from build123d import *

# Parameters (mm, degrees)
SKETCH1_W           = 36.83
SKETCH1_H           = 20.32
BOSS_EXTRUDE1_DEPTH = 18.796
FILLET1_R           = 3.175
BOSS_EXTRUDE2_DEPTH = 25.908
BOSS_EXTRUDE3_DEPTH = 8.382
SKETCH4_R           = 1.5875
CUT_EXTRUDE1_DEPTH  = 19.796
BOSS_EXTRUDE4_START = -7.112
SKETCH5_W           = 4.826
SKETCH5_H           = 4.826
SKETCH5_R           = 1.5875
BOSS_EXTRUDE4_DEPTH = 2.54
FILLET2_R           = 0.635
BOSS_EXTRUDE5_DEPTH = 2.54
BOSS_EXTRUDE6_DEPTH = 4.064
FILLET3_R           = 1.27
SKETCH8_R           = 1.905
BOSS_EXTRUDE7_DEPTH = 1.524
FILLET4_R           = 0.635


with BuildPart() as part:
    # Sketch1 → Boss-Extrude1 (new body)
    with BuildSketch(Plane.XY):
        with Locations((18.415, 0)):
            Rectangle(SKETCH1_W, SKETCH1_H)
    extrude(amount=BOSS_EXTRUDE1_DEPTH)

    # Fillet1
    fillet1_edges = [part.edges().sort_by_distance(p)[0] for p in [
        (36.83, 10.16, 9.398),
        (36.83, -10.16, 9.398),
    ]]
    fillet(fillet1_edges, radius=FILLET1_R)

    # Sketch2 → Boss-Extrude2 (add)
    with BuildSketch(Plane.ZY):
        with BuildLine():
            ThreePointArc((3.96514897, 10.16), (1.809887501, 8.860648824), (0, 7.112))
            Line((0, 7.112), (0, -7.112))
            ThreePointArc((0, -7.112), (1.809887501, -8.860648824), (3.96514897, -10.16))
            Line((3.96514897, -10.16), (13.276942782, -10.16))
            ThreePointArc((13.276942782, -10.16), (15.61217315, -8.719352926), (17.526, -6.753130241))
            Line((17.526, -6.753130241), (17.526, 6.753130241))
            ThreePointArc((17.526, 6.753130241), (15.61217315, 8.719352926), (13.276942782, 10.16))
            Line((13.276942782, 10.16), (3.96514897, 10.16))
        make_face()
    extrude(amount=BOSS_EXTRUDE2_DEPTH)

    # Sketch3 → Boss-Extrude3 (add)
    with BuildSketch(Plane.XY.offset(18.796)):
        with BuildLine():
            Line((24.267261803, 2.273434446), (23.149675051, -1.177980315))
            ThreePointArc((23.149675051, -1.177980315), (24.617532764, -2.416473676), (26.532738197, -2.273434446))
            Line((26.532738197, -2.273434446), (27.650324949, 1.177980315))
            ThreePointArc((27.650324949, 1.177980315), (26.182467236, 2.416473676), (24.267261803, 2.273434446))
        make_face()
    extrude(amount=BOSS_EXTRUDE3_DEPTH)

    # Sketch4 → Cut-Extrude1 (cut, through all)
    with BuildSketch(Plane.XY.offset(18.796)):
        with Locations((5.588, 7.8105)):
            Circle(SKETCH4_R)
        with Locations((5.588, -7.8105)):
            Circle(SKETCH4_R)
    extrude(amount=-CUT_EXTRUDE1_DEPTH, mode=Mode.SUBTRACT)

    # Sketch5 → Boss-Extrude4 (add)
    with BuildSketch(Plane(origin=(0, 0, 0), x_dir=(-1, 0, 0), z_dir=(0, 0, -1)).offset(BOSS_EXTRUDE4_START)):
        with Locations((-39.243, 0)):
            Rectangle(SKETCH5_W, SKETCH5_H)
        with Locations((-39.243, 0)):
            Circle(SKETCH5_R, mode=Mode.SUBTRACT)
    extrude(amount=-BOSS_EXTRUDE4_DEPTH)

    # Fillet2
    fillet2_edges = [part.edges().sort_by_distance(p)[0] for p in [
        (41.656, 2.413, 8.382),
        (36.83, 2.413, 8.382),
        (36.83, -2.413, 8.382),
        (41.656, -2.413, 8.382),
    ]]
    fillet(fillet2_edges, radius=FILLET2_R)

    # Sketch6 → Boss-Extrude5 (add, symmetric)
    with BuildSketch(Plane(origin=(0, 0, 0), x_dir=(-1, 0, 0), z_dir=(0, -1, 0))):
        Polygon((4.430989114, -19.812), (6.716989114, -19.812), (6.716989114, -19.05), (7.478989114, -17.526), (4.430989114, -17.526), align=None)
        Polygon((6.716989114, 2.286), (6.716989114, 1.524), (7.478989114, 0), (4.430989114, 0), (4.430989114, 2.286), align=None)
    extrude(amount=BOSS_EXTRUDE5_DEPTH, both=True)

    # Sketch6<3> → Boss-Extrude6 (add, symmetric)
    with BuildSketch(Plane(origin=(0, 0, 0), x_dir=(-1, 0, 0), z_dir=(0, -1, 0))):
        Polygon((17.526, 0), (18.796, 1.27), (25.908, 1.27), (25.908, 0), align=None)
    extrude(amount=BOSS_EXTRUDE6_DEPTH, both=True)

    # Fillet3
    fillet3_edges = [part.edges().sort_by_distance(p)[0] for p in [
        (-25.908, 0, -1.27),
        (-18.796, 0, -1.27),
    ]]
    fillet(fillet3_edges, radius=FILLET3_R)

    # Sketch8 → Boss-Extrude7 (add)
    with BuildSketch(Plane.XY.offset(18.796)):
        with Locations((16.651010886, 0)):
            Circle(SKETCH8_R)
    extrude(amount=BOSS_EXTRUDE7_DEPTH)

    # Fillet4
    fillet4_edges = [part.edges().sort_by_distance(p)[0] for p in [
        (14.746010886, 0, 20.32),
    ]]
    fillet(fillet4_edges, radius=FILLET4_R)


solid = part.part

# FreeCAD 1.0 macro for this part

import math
import FreeCAD as App
import Part
import Sketcher

V = App.Vector
Q = App.Units.Quantity


def edges_at(feature, points):
    """Names of the edges that pass closest to the given points."""
    edges = feature.Shape.Edges
    near = lambda p: min(range(len(edges)), key=lambda i: edges[i].distToShape(Part.Vertex(*p))[0])
    return sorted({f"Edge{near(p) + 1}" for p in points})


def add_polygon(sketch, points):
    """Adds a closed chain of lines whose ends are joined by coincident constraints."""
    first, n = sketch.GeometryCount, len(points)
    for a, b in zip(points, points[1:] + points[:1]):
        sketch.addGeometry(Part.LineSegment(App.Vector(*a, 0), App.Vector(*b, 0)), False)
    for i in range(n):
        sketch.addConstraint(Sketcher.Constraint("Coincident", first + i, 2, first + (i + 1) % n, 1))

doc = App.newDocument("Part")
body = doc.addObject("PartDesign::Body", "Body")

# Sketch on XY plane
sketch1 = body.newObject("Sketcher::SketchObject", "Sketch")
sketch1.AttachmentSupport = (doc.getObject("XY_Plane"), [""])
sketch1.MapMode = "FlatFace"
add_polygon(sketch1, [(0, 10.16), (0, -10.16), (36.83, -10.16), (36.83, 10.16)])  # lines 0-3
sketch1.addConstraint(Sketcher.Constraint("Vertical", 0))
sketch1.addConstraint(Sketcher.Constraint("Horizontal", 1))
sketch1.addConstraint(Sketcher.Constraint("Vertical", 2))
sketch1.addConstraint(Sketcher.Constraint("Horizontal", 3))
sketch1.addConstraint(Sketcher.Constraint("Symmetric", 0, 2, 3, 2, -1, 1))
sketch1.addConstraint(Sketcher.Constraint("DistanceY", 0, 2, 0, 1, Q("0.8 in")))
sketch1.addConstraint(Sketcher.Constraint("DistanceX", 1, 1, 1, 2, Q("1.45 in")))
pad1 = body.newObject("PartDesign::Pad", "Pad")
pad1.Profile = sketch1
pad1.Length = Q("0.74 in")
doc.recompute()

fillet = body.newObject("PartDesign::Fillet", "Fillet")
fillet.Base = (pad1, edges_at(pad1, [(36.83, 10.16, 9.398), (36.83, -10.16, 9.398)]))
fillet.Radius = Q("0.125 in")

# Sketch on YZ plane
sketch2 = body.newObject("Sketcher::SketchObject", "Sketch001")
sketch2.AttachmentSupport = (doc.getObject("YZ_Plane"), [""])
sketch2.MapMode = "FlatFace"
sketch2.addGeometry(Part.ArcOfCircle(Part.Circle(V(0, 8.621046, 0), V(0, 0, 1), 11.176), math.radians(-50.478804), math.radians(-24.619977)), False)
sketch2.addGeometry(Part.LineSegment(V(7.112, 0, 0), V(-7.112, 0, 0)), False)
sketch2.addGeometry(Part.ArcOfCircle(Part.Circle(V(0, 8.621046, 0), V(0, 0, 1), 11.176), math.radians(-155.380023), math.radians(-129.521196)), False)
sketch2.addGeometry(Part.LineSegment(V(-10.16, 3.965149, 0), V(-10.16, 13.276943, 0)), False)
sketch2.addGeometry(Part.ArcOfCircle(Part.Circle(V(0, 8.621046, 0), V(0, 0, 1), 11.176), math.radians(127.175099), math.radians(155.380023)), False)
sketch2.addGeometry(Part.LineSegment(V(-6.75313, 17.526, 0), V(6.75313, 17.526, 0)), False)
sketch2.addGeometry(Part.ArcOfCircle(Part.Circle(V(0, 8.621046, 0), V(0, 0, 1), 11.176), math.radians(24.619977), math.radians(52.824901)), False)
sketch2.addGeometry(Part.LineSegment(V(10.16, 13.276943, 0), V(10.16, 3.965149, 0)), False)
sketch2.addConstraint(Sketcher.Constraint("Coincident", 0, 1, 1, 1))
sketch2.addConstraint(Sketcher.Constraint("Coincident", 1, 2, 2, 2))
sketch2.addConstraint(Sketcher.Constraint("Coincident", 2, 1, 3, 1))
sketch2.addConstraint(Sketcher.Constraint("Coincident", 3, 2, 4, 2))
sketch2.addConstraint(Sketcher.Constraint("Coincident", 4, 1, 5, 1))
sketch2.addConstraint(Sketcher.Constraint("Coincident", 5, 2, 6, 2))
sketch2.addConstraint(Sketcher.Constraint("Coincident", 6, 1, 7, 1))
sketch2.addConstraint(Sketcher.Constraint("Coincident", 7, 2, 0, 2))
sketch2.addConstraint(Sketcher.Constraint("Horizontal", 1))
sketch2.addConstraint(Sketcher.Constraint("Vertical", 3))
sketch2.addConstraint(Sketcher.Constraint("Horizontal", 5))
sketch2.addConstraint(Sketcher.Constraint("Vertical", 7))
sketch2.addConstraint(Sketcher.Constraint("Coincident", 2, 3, 0, 3))
sketch2.addConstraint(Sketcher.Constraint("Coincident", 4, 3, 0, 3))
sketch2.addConstraint(Sketcher.Constraint("Coincident", 6, 3, 0, 3))
sketch2.addConstraint(Sketcher.Constraint("Equal", 0, 2))
sketch2.addConstraint(Sketcher.Constraint("Equal", 2, 4))
sketch2.addConstraint(Sketcher.Constraint("Equal", 4, 6))
sketch2.addConstraint(Sketcher.Constraint("Symmetric", 0, 1, 1, 2, -1, 1))
sketch2.addConstraint(Sketcher.Constraint("Horizontal", 3, 2, 6, 1))
sketch2.addConstraint(Sketcher.Constraint("Radius", 0, Q("0.44 in")))
sketch2.addConstraint(Sketcher.Constraint("DistanceX", 1, 2, 1, 1, Q("0.56 in")))
sketch2.addConstraint(Sketcher.Constraint("DistanceX", 2, 1, -1, 1, Q("0.4 in")))
sketch2.addConstraint(Sketcher.Constraint("DistanceY", -1, 1, 4, 1, Q("0.69 in")))
pad2 = body.newObject("PartDesign::Pad", "Pad001")
pad2.Profile = sketch2
pad2.Length = Q("1.02 in")
pad2.Reversed = True

# Sketch on XY plane
sketch3 = body.newObject("Sketcher::SketchObject", "Sketch002")
sketch3.AttachmentSupport = (doc.getObject("XY_Plane"), [""])
sketch3.MapMode = "FlatFace"
sketch3.AttachmentOffset = App.Placement(V(0, 0, 0.74 * 25.4), App.Rotation())
sketch3.addGeometry(Part.LineSegment(V(24.267262, 2.273434, 0), V(23.149675, -1.17798, 0)), False)
sketch3.addGeometry(Part.ArcOfCircle(Part.Circle(V(25.4, 0, 0), V(0, 0, 1), 2.54), math.radians(-152.369237), math.radians(-63.515229)), False)
sketch3.addGeometry(Part.LineSegment(V(26.532738, -2.273434, 0), V(27.650325, 1.17798, 0)), False)
sketch3.addGeometry(Part.ArcOfCircle(Part.Circle(V(25.4, 0, 0), V(0, 0, 1), 2.54), math.radians(27.630763), math.radians(116.484771)), False)
sketch3.addConstraint(Sketcher.Constraint("Coincident", 0, 2, 1, 1))
sketch3.addConstraint(Sketcher.Constraint("Coincident", 1, 2, 2, 1))
sketch3.addConstraint(Sketcher.Constraint("Coincident", 2, 2, 3, 1))
sketch3.addConstraint(Sketcher.Constraint("Coincident", 3, 2, 0, 1))
sketch3.addConstraint(Sketcher.Constraint("Coincident", 3, 3, 1, 3))
sketch3.addConstraint(Sketcher.Constraint("Equal", 1, 3))
sketch3.addConstraint(Sketcher.Constraint("PointOnObject", 1, 3, -1))
sketch3.addConstraint(Sketcher.Constraint("Parallel", 0, 2))
sketch3.addConstraint(Sketcher.Constraint("Equal", 0, 2))
sketch3.addConstraint(Sketcher.Constraint("Radius", 1, Q("0.1 in")))
sketch3.addConstraint(Sketcher.Constraint("DistanceX", -1, 1, 1, 3, Q("1 in")))
sketch3.addConstraint(Sketcher.Constraint("DistanceY", 0, 2, -1, 1, Q("1.17798 mm")))
sketch3.addConstraint(Sketcher.Constraint("DistanceX", -1, 1, 1, 2, Q("26.532738 mm")))
pad3 = body.newObject("PartDesign::Pad", "Pad002")
pad3.Profile = sketch3
pad3.Length = Q("0.33 in")

# Sketch on XY plane
sketch4 = body.newObject("Sketcher::SketchObject", "Sketch003")
sketch4.AttachmentSupport = (doc.getObject("XY_Plane"), [""])
sketch4.MapMode = "FlatFace"
sketch4.AttachmentOffset = App.Placement(V(0, 0, 0.74 * 25.4), App.Rotation())
sketch4.addGeometry(Part.Circle(V(5.588, 7.8105, 0), V(0, 0, 1), 1.5875), False)
sketch4.addGeometry(Part.Circle(V(5.588, -7.8105, 0), V(0, 0, 1), 1.5875), False)
sketch4.addConstraint(Sketcher.Constraint("Equal", 0, 1))
sketch4.addConstraint(Sketcher.Constraint("Symmetric", 0, 3, 1, 3, -1))
sketch4.addConstraint(Sketcher.Constraint("Diameter", 0, Q("0.125 in")))
sketch4.addConstraint(Sketcher.Constraint("DistanceX", -1, 1, 0, 3, Q("0.22 in")))
sketch4.addConstraint(Sketcher.Constraint("DistanceY", 1, 3, 0, 3, Q("0.615 in")))
pocket1 = body.newObject("PartDesign::Pocket", "Pocket")
pocket1.Profile = sketch4
pocket1.Type = "ThroughAll"

# Sketch on XY plane
sketch5 = body.newObject("Sketcher::SketchObject", "Sketch004")
sketch5.AttachmentSupport = (doc.getObject("XY_Plane"), [""])
sketch5.MapMode = "FlatFace"
sketch5.AttachmentOffset = App.Placement(V(0, 0, 0.28 * 25.4), App.Rotation())
add_polygon(sketch5, [(41.656, 2.413), (41.656, -2.413), (36.83, -2.413), (36.83, 2.413)])  # lines 0-3
sketch5.addGeometry(Part.Circle(V(39.243, 0, 0), V(0, 0, 1), 1.5875), False)  # 4
sketch5.addConstraint(Sketcher.Constraint("Vertical", 0))
sketch5.addConstraint(Sketcher.Constraint("Horizontal", 1))
sketch5.addConstraint(Sketcher.Constraint("Vertical", 2))
sketch5.addConstraint(Sketcher.Constraint("Horizontal", 3))
sketch5.addConstraint(Sketcher.Constraint("PointOnObject", 4, 3, -1))
sketch5.addConstraint(Sketcher.Constraint("Equal", 3, 0))
sketch5.addConstraint(Sketcher.Constraint("Diameter", 4, Q("0.125 in")))
sketch5.addConstraint(Sketcher.Constraint("DistanceX", 1, 2, 1, 1, Q("0.19 in")))
sketch5.addConstraint(Sketcher.Constraint("DistanceX", -1, 1, 0, 2, Q("1.64 in")))
sketch5.addConstraint(Sketcher.Constraint("DistanceX", -1, 1, 4, 3, Q("1.545 in")))
sketch5.addConstraint(Sketcher.Constraint("DistanceY", 0, 2, -1, 1, Q("0.095 in")))
pad4 = body.newObject("PartDesign::Pad", "Pad003")
pad4.Profile = sketch5
pad4.Length = Q("0.1 in")
doc.recompute()

fillet2 = body.newObject("PartDesign::Fillet", "Fillet001")
fillet2.Base = (pad4, edges_at(pad4, [
    (41.656, 2.413, 8.382),
    (36.83, 2.413, 8.382),
    (36.83, -2.413, 8.382),
    (41.656, -2.413, 8.382),
]))
fillet2.Radius = Q("0.025 in")

# Sketch on XZ plane
sketch6 = body.newObject("Sketcher::SketchObject", "Sketch005")
sketch6.AttachmentSupport = (doc.getObject("XZ_Plane"), [""])
sketch6.MapMode = "FlatFace"
add_polygon(sketch6, [(-4.430989, 19.812), (-6.716989, 19.812), (-6.716989, 19.05), (-7.478989, 17.526), (-4.430989, 17.526)])  # lines 0-4
add_polygon(sketch6, [(-6.716989, -1.524), (-6.716989, -2.286), (-4.430989, -2.286), (-4.430989, 0), (-7.478989, 0)])  # lines 5-9
sketch6.addConstraint(Sketcher.Constraint("Horizontal", 0))
sketch6.addConstraint(Sketcher.Constraint("Vertical", 1))
sketch6.addConstraint(Sketcher.Constraint("Horizontal", 3))
sketch6.addConstraint(Sketcher.Constraint("Vertical", 4))
sketch6.addConstraint(Sketcher.Constraint("Vertical", 5))
sketch6.addConstraint(Sketcher.Constraint("Horizontal", 6))
sketch6.addConstraint(Sketcher.Constraint("Vertical", 7))
sketch6.addConstraint(Sketcher.Constraint("Horizontal", 8))
sketch6.addConstraint(Sketcher.Constraint("PointOnObject", 7, 2, -1))
sketch6.addConstraint(Sketcher.Constraint("Vertical", 1, 2, 5, 2))
sketch6.addConstraint(Sketcher.Constraint("Vertical", 4, 2, 6, 2))
sketch6.addConstraint(Sketcher.Constraint("Vertical", 2, 2, 8, 2))
sketch6.addConstraint(Sketcher.Constraint("Equal", 6, 4))
sketch6.addConstraint(Sketcher.Constraint("Equal", 1, 5))
sketch6.addConstraint(Sketcher.Constraint("Equal", 4, 7))
sketch6.addConstraint(Sketcher.Constraint("DistanceX", 0, 2, 0, 1, Q("0.09 in")))
sketch6.addConstraint(Sketcher.Constraint("DistanceX", 3, 1, 3, 2, Q("0.12 in")))
sketch6.addConstraint(Sketcher.Constraint("DistanceY", 1, 2, 1, 1, Q("0.03 in")))
sketch6.addConstraint(Sketcher.Constraint("DistanceY", -1, 1, 0, 2, Q("0.78 in")))
sketch6.addConstraint(Sketcher.Constraint("DistanceX", 0, 2, -1, 1, Q("6.716989 mm")))
pad5 = body.newObject("PartDesign::Pad", "Pad004")
pad5.Profile = sketch6
pad5.Length = Q("0.2 in")
pad5.Midplane = True

# Sketch on XZ plane
sketch7 = body.newObject("Sketcher::SketchObject", "Sketch006")
sketch7.AttachmentSupport = (doc.getObject("XZ_Plane"), [""])
sketch7.MapMode = "FlatFace"
add_polygon(sketch7, [(-18.796, -1.27), (-17.526, 0), (-25.908, 0), (-25.908, -1.27)])  # lines 0-3
sketch7.addConstraint(Sketcher.Constraint("Horizontal", 1))
sketch7.addConstraint(Sketcher.Constraint("Vertical", 2))
sketch7.addConstraint(Sketcher.Constraint("Horizontal", 3))
sketch7.addConstraint(Sketcher.Constraint("PointOnObject", 0, 2, -1))
sketch7.addConstraint(Sketcher.Constraint("Angle", 0, Q("45 deg")))
sketch7.addConstraint(Sketcher.Constraint("DistanceX", 1, 2, 1, 1, Q("0.33 in")))
sketch7.addConstraint(Sketcher.Constraint("DistanceX", 3, 1, 3, 2, Q("0.28 in")))
sketch7.addConstraint(Sketcher.Constraint("DistanceX", 0, 2, -1, 1, Q("0.69 in")))
pad6 = body.newObject("PartDesign::Pad", "Pad005")
pad6.Profile = sketch7
pad6.Length = Q("0.32 in")
pad6.Midplane = True
doc.recompute()

fillet3 = body.newObject("PartDesign::Fillet", "Fillet002")
fillet3.Base = (pad6, edges_at(pad6, [(-25.908, 0, -1.27), (-18.796, 0, -1.27)]))
fillet3.Radius = Q("0.05 in")

# Sketch on XY plane
sketch8 = body.newObject("Sketcher::SketchObject", "Sketch007")
sketch8.AttachmentSupport = (doc.getObject("XY_Plane"), [""])
sketch8.MapMode = "FlatFace"
sketch8.AttachmentOffset = App.Placement(V(0, 0, 0.74 * 25.4), App.Rotation())
sketch8.addGeometry(Part.Circle(V(16.651011, 0, 0), V(0, 0, 1), 1.905), False)
sketch8.addConstraint(Sketcher.Constraint("PointOnObject", 0, 3, -1))
sketch8.addConstraint(Sketcher.Constraint("Diameter", 0, Q("0.15 in")))
sketch8.addConstraint(Sketcher.Constraint("DistanceX", -1, 1, 0, 3, Q("16.651011 mm")))
pad7 = body.newObject("PartDesign::Pad", "Pad006")
pad7.Profile = sketch8
pad7.Length = Q("0.06 in")
doc.recompute()

fillet4 = body.newObject("PartDesign::Fillet", "Fillet003")
fillet4.Base = (pad7, edges_at(pad7, [(14.746, 0, 20.32)]))
fillet4.Radius = Q("0.025 in")

doc.recompute()
